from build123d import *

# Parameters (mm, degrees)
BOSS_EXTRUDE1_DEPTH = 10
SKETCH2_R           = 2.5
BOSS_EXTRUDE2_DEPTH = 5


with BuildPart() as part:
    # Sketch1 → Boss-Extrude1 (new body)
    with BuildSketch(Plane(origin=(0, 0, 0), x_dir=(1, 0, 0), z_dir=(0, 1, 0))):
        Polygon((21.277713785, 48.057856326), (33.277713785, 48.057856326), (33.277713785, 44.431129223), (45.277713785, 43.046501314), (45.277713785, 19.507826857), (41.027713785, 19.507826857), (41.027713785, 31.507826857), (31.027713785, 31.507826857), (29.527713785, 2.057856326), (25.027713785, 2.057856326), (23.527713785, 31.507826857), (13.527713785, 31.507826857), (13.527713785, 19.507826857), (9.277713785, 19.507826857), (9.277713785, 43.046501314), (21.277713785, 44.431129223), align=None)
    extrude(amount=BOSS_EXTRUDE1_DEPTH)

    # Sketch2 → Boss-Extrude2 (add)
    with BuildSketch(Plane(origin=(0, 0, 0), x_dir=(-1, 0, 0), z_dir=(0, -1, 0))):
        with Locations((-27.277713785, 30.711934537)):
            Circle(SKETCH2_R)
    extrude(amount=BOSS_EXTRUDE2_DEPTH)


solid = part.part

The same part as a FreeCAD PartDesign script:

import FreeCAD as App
import Part
import Sketcher

V = App.Vector


def add_polygon(sketch, points):
    """Adds a closed chain of lines whose ends are joined by coincident constraints."""
    first, n = sketch.GeometryCount, len(points)
    for a, b in zip(points, points[1:] + points[:1]):
        sketch.addGeometry(Part.LineSegment(App.Vector(*a, 0), App.Vector(*b, 0)), False)
    for i in range(n):
        sketch.addConstraint(Sketcher.Constraint("Coincident", first + i, 2, first + (i + 1) % n, 1))

doc = App.newDocument("Part")
body = doc.addObject("PartDesign::Body", "Body")

# Sketch on XZ plane
sketch1 = body.newObject("Sketcher::SketchObject", "Sketch")
sketch1.AttachmentSupport = (doc.getObject("XZ_Plane"), [""])
sketch1.MapMode = "FlatFace"
add_polygon(sketch1, [(33.3, -48.1), (21.3, -48.1), (21.3, -44.4), (9.3, -43), (9.3, -19.5), (13.5, -19.5), (13.5, -31.5), (23.5, -31.5), (25, -2.1), (29.5, -2.1), (31, -31.5), (41, -31.5), (41, -19.5), (45.3, -19.5), (45.3, -43), (33.3, -44.4)])  # lines 0-15
sketch1.addConstraint([
    Sketcher.Constraint("Horizontal", 0),
    Sketcher.Constraint("Vertical", 1),
    Sketcher.Constraint("Vertical", 3),
    Sketcher.Constraint("Horizontal", 4),
    Sketcher.Constraint("Vertical", 5),
    Sketcher.Constraint("Horizontal", 6),
    Sketcher.Constraint("Horizontal", 8),
    Sketcher.Constraint("Horizontal", 10),
    Sketcher.Constraint("Vertical", 11),
    Sketcher.Constraint("Horizontal", 12),
    Sketcher.Constraint("Vertical", 13),
    Sketcher.Constraint("Vertical", 15),
    Sketcher.Constraint("Horizontal", 6, 2, 9, 2),
    Sketcher.Constraint("Horizontal", 4, 2, 11, 2),
    Sketcher.Constraint("Horizontal", 2, 2, 13, 2),
    Sketcher.Constraint("Horizontal", 1, 2, 14, 2),
    Sketcher.Constraint("Equal", 6, 10),
    Sketcher.Constraint("Equal", 4, 12),
    Sketcher.Constraint("Equal", 0, 5),
    Sketcher.Constraint("Equal", 7, 9),
    Sketcher.Constraint("Equal", 2, 14),
    Sketcher.Constraint("DistanceX", 0, 2, 0, 1, 12.0),
    Sketcher.Constraint("DistanceX", 6, 1, 6, 2, 10.0),
    Sketcher.Constraint("DistanceX", 8, 1, 8, 2, 4.5),
    Sketcher.Constraint("DistanceX", 2, 2, 1, 2, 12.0),
    Sketcher.Constraint("DistanceX", 4, 2, 8, 2, 16.0),
    Sketcher.Constraint("DistanceY", 2, 2, -1, 1, 43.046501),
    Sketcher.Constraint("Distance", 2, 12.079619),
    Sketcher.Constraint("DistanceY", 1, 1, 1, 2, 3.626727),
    Sketcher.Constraint("DistanceY", 3, 1, 3, 2, 23.538674),
    Sketcher.Constraint("DistanceY", 4, 2, 7, 2, 17.449971),
    Sketcher.Constraint("DistanceX", -1, 1, 0, 2, 21.277714),
])
pad1 = body.newObject("PartDesign::Pad", "Pad")
pad1.Profile = sketch1
pad1.Length = 10
pad1.Reversed = True

# Sketch on XZ plane
sketch2 = body.newObject("Sketcher::SketchObject", "Sketch001")
sketch2.AttachmentSupport = (doc.getObject("XZ_Plane"), [""])
sketch2.MapMode = "FlatFace"
sketch2.addGeometry(Part.Circle(V(27.3, -30.7, 0), V(0, 0, 1), 2.5), False)
sketch2.addConstraint([
    Sketcher.Constraint("Diameter", 0, 5.0),
    Sketcher.Constraint("DistanceX", -1, 1, 0, 3, 27.277714),
    Sketcher.Constraint("DistanceY", 0, 3, -1, 1, 30.711935),
])
pad2 = body.newObject("PartDesign::Pad", "Pad001")
pad2.Profile = sketch2
pad2.Length = 5

doc.recompute()
